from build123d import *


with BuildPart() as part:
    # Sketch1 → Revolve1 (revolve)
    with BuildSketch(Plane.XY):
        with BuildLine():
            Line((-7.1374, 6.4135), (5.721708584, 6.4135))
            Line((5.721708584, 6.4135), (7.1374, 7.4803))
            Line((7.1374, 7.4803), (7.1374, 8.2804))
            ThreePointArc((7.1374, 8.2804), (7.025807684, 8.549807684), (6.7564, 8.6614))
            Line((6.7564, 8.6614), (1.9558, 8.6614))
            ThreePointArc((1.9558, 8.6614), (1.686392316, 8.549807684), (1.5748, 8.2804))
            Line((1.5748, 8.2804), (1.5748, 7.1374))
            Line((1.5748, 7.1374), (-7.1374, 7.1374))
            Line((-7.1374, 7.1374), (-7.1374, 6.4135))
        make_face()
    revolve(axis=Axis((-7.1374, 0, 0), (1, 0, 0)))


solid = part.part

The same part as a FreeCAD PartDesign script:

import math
import FreeCAD as App
import Part
import Sketcher

V = App.Vector
Q = App.Units.Quantity

doc = App.newDocument("Part")
params = doc.addObject("Spreadsheet::Sheet", "Params")
for row, (alias, value) in enumerate([
    ("sketch1_radius", "0.015 in"),
    ("sketch1_width", "0.189 in"),
    ("sketch1_width2", "0.343 in"),
    ("sketch1_height", "0.045 in"),
    ("revolution_angle", "360 deg"),
], start=1):
    params.set(f"A{row}", alias)
    params.set(f"B{row}", "=" + value)
    params.setAlias(f"B{row}", alias)

body = doc.addObject("PartDesign::Body", "Body")

# Sketch on XY plane
sketch1 = body.newObject("Sketcher::SketchObject", "Sketch")
sketch1.AttachmentSupport = (doc.getObject("XY_Plane"), [""])
sketch1.MapMode = "FlatFace"
sketch1.addGeometry([
    Part.LineSegment(V(-7.1374, 6.4135, 0), V(5.721709, 6.4135, 0)),  # 0
    Part.LineSegment(V(5.721709, 6.4135, 0), V(7.1374, 7.4803, 0)),  # 1
    Part.LineSegment(V(7.1374, 7.4803, 0), V(7.1374, 8.2804, 0)),  # 2
    Part.ArcOfCircle(Part.Circle(V(6.7564, 8.2804, 0), V(0, 0, 1), 0.381), math.radians(0), math.radians(90)),  # 3
    Part.LineSegment(V(6.7564, 8.6614, 0), V(1.9558, 8.6614, 0)),  # 4
    Part.ArcOfCircle(Part.Circle(V(1.9558, 8.2804, 0), V(0, 0, 1), 0.381), math.radians(90), math.radians(180)),  # 5
    Part.LineSegment(V(1.5748, 8.2804, 0), V(1.5748, 7.1374, 0)),  # 6
    Part.LineSegment(V(1.5748, 7.1374, 0), V(-7.1374, 7.1374, 0)),  # 7
    Part.LineSegment(V(-7.1374, 7.1374, 0), V(-7.1374, 6.4135, 0)),  # 8
], False)
sketch1.addConstraint([
    Sketcher.Constraint("Coincident", 0, 2, 1, 1),
    Sketcher.Constraint("Coincident", 1, 2, 2, 1),
    Sketcher.Constraint("Tangent", 2, 2, 3, 1),
    Sketcher.Constraint("Tangent", 3, 2, 4, 1),
    Sketcher.Constraint("Tangent", 4, 2, 5, 1),
    Sketcher.Constraint("Tangent", 5, 2, 6, 1),
    Sketcher.Constraint("Coincident", 6, 2, 7, 1),
    Sketcher.Constraint("Coincident", 7, 2, 8, 1),
    Sketcher.Constraint("Coincident", 8, 2, 0, 1),
    Sketcher.Constraint("Horizontal", 0),
    Sketcher.Constraint("Vertical", 2),
    Sketcher.Constraint("Horizontal", 4),
    Sketcher.Constraint("Vertical", 6),
    Sketcher.Constraint("Horizontal", 7),
    Sketcher.Constraint("Vertical", 8),
    Sketcher.Constraint("Equal", 3, 5),
    Sketcher.Constraint("Angle", 1, Q("37 deg")),
    Sketcher.Constraint("Radius", 3, Q("0.015 in")),
    Sketcher.Constraint("DistanceX", 4, 2, 4, 1, Q("0.189 in")),
    Sketcher.Constraint("DistanceX", 7, 2, 7, 1, Q("0.343 in")),
    Sketcher.Constraint("DistanceY", 6, 2, 6, 1, Q("0.045 in")),
    Sketcher.Constraint("DistanceY", 2, 1, 2, 2, Q("0.0315 in")),
    Sketcher.Constraint("DistanceY", 8, 2, 8, 1, Q("0.0285 in")),
    Sketcher.Constraint("DistanceX", -1, 1, 3, 3, Q("0.266 in")),
    Sketcher.Constraint("DistanceY", -1, 1, 3, 3, Q("0.326 in")),
])
sketch1.setExpression("Constraints[17]", "Params.sketch1_radius")
sketch1.setExpression("Constraints[18]", "Params.sketch1_width")
sketch1.setExpression("Constraints[19]", "Params.sketch1_width2")
sketch1.setExpression("Constraints[20]", "Params.sketch1_height")
revolution = body.newObject("PartDesign::Revolution", "Revolution")
revolution.Profile = sketch1
revolution.ReferenceAxis = (sketch1, ["H_Axis"])
revolution.setExpression("Angle", "Params.revolution_angle")

doc.recompute()
